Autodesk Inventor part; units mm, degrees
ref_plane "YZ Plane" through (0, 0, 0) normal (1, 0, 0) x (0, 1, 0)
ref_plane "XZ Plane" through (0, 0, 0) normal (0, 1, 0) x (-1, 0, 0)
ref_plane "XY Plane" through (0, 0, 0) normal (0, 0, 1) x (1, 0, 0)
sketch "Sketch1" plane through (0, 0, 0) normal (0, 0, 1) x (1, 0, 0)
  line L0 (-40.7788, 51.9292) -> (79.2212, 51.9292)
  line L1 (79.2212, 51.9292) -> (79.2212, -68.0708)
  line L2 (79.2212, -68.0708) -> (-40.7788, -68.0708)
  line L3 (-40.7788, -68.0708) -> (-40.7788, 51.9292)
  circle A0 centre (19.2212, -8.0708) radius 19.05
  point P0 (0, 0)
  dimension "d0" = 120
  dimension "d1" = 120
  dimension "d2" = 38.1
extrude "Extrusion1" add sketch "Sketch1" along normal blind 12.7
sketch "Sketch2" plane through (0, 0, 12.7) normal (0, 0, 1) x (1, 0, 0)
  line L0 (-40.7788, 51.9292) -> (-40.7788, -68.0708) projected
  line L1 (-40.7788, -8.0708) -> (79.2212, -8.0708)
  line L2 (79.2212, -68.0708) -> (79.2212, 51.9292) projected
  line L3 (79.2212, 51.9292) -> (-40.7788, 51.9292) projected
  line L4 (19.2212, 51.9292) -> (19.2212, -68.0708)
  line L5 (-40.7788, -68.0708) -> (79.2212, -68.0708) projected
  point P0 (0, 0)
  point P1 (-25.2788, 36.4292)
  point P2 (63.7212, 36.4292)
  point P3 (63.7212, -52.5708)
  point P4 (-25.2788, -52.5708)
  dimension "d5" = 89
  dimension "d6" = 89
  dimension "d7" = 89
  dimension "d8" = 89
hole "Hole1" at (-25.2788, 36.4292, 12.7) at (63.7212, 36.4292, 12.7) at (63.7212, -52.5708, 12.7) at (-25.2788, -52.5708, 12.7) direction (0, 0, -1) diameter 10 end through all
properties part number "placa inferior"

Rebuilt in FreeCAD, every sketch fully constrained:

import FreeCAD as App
import Part
import Sketcher
from FreeCAD import Vector
Q = App.Units.Quantity

doc = App.newDocument("Part")
body = doc.addObject("PartDesign::Body", "Body")

sketch1 = body.newObject("Sketcher::SketchObject", "Sketch")
sketch1.AttachmentSupport = (doc.getObject("XY_Plane"), [""])
sketch1.MapMode = "FlatFace"
sketch1.addGeometry(Part.LineSegment(Vector(79, 52, 0), Vector(-41, 52, 0)), False)
sketch1.addGeometry(Part.LineSegment(Vector(-41, 52, 0), Vector(-41, -68, 0)), False)
sketch1.addGeometry(Part.LineSegment(Vector(-41, -68, 0), Vector(79, -68, 0)), False)
sketch1.addGeometry(Part.LineSegment(Vector(79, -68, 0), Vector(79, 52, 0)), False)
sketch1.addGeometry(Part.Circle(Vector(19, -8, 0), Vector(0, 0, 1), 19), False)
sketch1.addConstraint(Sketcher.Constraint("Coincident", 0, 2, 1, 1))
sketch1.addConstraint(Sketcher.Constraint("Coincident", 1, 2, 2, 1))
sketch1.addConstraint(Sketcher.Constraint("Coincident", 2, 2, 3, 1))
sketch1.addConstraint(Sketcher.Constraint("Coincident", 3, 2, 0, 1))
sketch1.addConstraint(Sketcher.Constraint("Horizontal", 0))
sketch1.addConstraint(Sketcher.Constraint("Vertical", 1))
sketch1.addConstraint(Sketcher.Constraint("Horizontal", 2))
sketch1.addConstraint(Sketcher.Constraint("Vertical", 3))
sketch1.addConstraint(Sketcher.Constraint("Equal", 2, 1))
sketch1.addConstraint(Sketcher.Constraint("Diameter", 4, Q("1.5 in")))
sketch1.addConstraint(Sketcher.Constraint("DistanceX", 0, 2, 0, 1, Q("4.7244 in")))
sketch1.addConstraint(Sketcher.Constraint("DistanceX", 0, 2, 4, 3, Q("2.3622 in")))
sketch1.addConstraint(Sketcher.Constraint("DistanceY", 4, 3, 0, 2, Q("2.3622 in")))
sketch1.addConstraint(Sketcher.Constraint("DistanceX", -1, 1, 4, 3, 19.2212))
sketch1.addConstraint(Sketcher.Constraint("DistanceY", 4, 3, -1, 1, 8.0708))
pad1 = body.newObject("PartDesign::Pad", "Pad")
pad1.Profile = sketch1
pad1.Length = Q("0.5 in")

sketch2 = body.newObject("Sketcher::SketchObject", "Sketch001")
sketch2.AttachmentSupport = (doc.getObject("XY_Plane"), [""])
sketch2.MapMode = "FlatFace"
sketch2.AttachmentOffset = App.Placement(Vector(0, 0, 0.5 * 25.4), App.Rotation())
sketch2.addGeometry(Part.Circle(Vector(-25, 36, 0), Vector(0, 0, 1), 5), False)
sketch2.addGeometry(Part.Circle(Vector(64, 36, 0), Vector(0, 0, 1), 5), False)
sketch2.addGeometry(Part.Circle(Vector(64, -53, 0), Vector(0, 0, 1), 5), False)
sketch2.addGeometry(Part.Circle(Vector(-25, -53, 0), Vector(0, 0, 1), 5), False)
sketch2.addConstraint(Sketcher.Constraint("Equal", 0, 1))
sketch2.addConstraint(Sketcher.Constraint("Equal", 1, 2))
sketch2.addConstraint(Sketcher.Constraint("Equal", 2, 3))
sketch2.addConstraint(Sketcher.Constraint("Horizontal", 0, 3, 1, 3))
sketch2.addConstraint(Sketcher.Constraint("Horizontal", 2, 3, 3, 3))
sketch2.addConstraint(Sketcher.Constraint("Vertical", 1, 3, 2, 3))
sketch2.addConstraint(Sketcher.Constraint("Vertical", 0, 3, 3, 3))
sketch2.addConstraint(Sketcher.Constraint("Diameter", 0, Q("0.3937 in")))
sketch2.addConstraint(Sketcher.Constraint("DistanceX", -1, 1, 1, 3, Q("2.5087 in")))
sketch2.addConstraint(Sketcher.Constraint("DistanceX", 0, 3, -1, 1, 25.2788))
sketch2.addConstraint(Sketcher.Constraint("DistanceY", -1, 1, 0, 3, 36.4292))
sketch2.addConstraint(Sketcher.Constraint("DistanceY", 2, 3, -1, 1, 52.5708))
doc.recompute()
hole = body.newObject("PartDesign::Hole", "Hole")
hole.Profile = sketch2
hole.ThreadType = "None"
hole.Diameter = Q("0.3937008 in")
hole.DepthType = "ThroughAll"

doc.recompute()
